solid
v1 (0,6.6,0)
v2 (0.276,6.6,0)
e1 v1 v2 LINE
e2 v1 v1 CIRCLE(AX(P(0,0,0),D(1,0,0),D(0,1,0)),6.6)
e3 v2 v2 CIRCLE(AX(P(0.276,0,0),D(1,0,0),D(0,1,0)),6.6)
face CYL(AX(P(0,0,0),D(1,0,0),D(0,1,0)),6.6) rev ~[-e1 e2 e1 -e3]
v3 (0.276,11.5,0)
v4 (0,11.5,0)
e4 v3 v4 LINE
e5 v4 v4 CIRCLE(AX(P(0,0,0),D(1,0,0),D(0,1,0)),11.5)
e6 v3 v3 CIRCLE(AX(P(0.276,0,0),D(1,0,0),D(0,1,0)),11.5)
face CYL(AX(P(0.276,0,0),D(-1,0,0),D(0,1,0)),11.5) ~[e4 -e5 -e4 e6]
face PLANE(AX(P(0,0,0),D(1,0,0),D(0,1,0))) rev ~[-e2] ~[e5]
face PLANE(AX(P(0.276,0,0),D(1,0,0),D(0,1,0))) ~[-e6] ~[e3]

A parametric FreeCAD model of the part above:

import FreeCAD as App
import Part
import Sketcher
from FreeCAD import Vector
Q = App.Units.Quantity

doc = App.newDocument("Part")
params = doc.addObject("Spreadsheet::Sheet", "Params")
for row, (alias, value) in enumerate([
    ("sketch1_height", "4.9 mm"),
    ("revolution_angle", "360 deg"),
], start=1):
    params.set(f"A{row}", alias)
    params.set(f"B{row}", "=" + value)
    params.setAlias(f"B{row}", alias)

body = doc.addObject("PartDesign::Body", "Body")

# Sketch on XY plane
sketch1 = body.newObject("Sketcher::SketchObject", "Sketch")
sketch1.AttachmentSupport = (doc.getObject("XY_Plane"), [""])
sketch1.MapMode = "FlatFace"
sketch1.addGeometry([
    Part.LineSegment(Vector(0, 11.5, 0), Vector(0, 6.6, 0)),
    Part.LineSegment(Vector(0, 6.6, 0), Vector(0.28, 6.6, 0)),
    Part.LineSegment(Vector(0.28, 6.6, 0), Vector(0.28, 11.5, 0)),
    Part.LineSegment(Vector(0.28, 11.5, 0), Vector(0, 11.5, 0)),
], False)
sketch1.addConstraint([
    Sketcher.Constraint("Coincident", 0, 2, 1, 1),
    Sketcher.Constraint("Coincident", 1, 2, 2, 1),
    Sketcher.Constraint("Coincident", 2, 2, 3, 1),
    Sketcher.Constraint("Coincident", 3, 2, 0, 1),
    Sketcher.Constraint("Vertical", 0),
    Sketcher.Constraint("Horizontal", 1),
    Sketcher.Constraint("Vertical", 2),
    Sketcher.Constraint("Horizontal", 3),
    Sketcher.Constraint("PointOnObject", 0, 2, -2),
    Sketcher.Constraint("DistanceY", 0, 2, 0, 1, Q("4.9 mm")),
    Sketcher.Constraint("DistanceY", -1, 1, 0, 2, Q("6.6 mm")),
    Sketcher.Constraint("DistanceX", 1, 1, 1, 2, Q("0.276 mm")),
])
sketch1.setExpression("Constraints[9]", "Params.sketch1_height")
revolution = body.newObject("PartDesign::Revolution", "Revolution")
revolution.Profile = sketch1
revolution.ReferenceAxis = (sketch1, ["H_Axis"])
revolution.setExpression("Angle", "Params.revolution_angle")

doc.recompute()
